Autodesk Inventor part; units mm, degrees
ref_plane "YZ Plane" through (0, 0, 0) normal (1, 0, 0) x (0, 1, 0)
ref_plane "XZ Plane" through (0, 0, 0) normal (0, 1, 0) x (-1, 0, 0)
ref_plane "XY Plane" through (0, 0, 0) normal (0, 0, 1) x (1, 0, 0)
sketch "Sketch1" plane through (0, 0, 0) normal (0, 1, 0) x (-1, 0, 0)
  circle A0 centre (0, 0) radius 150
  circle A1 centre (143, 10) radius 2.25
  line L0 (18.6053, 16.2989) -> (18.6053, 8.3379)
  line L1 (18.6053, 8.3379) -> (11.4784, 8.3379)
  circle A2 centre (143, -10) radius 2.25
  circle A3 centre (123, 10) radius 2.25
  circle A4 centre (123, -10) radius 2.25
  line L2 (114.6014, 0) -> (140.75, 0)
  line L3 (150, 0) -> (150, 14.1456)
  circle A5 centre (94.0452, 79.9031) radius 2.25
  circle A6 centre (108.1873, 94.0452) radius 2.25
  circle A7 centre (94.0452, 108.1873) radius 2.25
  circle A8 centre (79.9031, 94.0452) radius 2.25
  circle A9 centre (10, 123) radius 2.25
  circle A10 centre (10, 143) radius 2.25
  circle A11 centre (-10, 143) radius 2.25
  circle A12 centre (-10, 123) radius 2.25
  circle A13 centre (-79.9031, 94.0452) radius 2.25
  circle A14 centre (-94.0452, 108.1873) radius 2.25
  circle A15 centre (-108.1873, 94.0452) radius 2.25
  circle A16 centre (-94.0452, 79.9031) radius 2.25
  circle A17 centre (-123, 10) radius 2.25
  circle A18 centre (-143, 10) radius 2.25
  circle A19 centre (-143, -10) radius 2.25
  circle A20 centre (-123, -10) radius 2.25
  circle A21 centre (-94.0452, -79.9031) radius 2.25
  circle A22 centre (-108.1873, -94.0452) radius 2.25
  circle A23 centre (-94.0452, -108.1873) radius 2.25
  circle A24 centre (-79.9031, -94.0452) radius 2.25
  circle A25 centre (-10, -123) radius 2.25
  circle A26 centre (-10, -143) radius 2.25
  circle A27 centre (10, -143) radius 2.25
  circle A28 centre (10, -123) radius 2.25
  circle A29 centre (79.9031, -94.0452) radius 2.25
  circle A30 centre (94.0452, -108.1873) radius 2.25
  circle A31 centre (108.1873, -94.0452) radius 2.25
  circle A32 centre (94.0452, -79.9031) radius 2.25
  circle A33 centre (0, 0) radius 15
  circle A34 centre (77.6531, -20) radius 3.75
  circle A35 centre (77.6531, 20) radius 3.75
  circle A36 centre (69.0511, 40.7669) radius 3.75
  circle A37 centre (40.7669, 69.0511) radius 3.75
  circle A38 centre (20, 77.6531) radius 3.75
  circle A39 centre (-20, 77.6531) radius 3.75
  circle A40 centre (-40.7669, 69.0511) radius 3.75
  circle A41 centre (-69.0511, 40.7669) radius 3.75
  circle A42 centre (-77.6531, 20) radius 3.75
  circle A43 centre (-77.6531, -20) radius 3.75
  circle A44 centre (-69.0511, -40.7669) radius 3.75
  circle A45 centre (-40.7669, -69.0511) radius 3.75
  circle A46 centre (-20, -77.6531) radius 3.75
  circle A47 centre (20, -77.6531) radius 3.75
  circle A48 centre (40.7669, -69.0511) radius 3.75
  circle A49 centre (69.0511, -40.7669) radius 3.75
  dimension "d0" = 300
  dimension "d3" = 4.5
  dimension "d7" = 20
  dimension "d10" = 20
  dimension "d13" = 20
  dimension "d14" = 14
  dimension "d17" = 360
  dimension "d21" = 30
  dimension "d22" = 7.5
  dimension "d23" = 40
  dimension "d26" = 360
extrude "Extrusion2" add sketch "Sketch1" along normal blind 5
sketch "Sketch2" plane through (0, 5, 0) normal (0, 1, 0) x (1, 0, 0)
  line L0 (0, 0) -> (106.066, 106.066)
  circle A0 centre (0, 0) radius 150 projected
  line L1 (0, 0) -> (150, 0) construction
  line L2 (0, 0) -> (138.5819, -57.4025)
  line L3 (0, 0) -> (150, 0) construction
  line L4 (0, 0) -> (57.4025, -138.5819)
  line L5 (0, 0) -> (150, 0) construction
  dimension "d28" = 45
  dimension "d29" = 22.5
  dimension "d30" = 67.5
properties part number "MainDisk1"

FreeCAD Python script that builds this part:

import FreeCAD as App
import Part
import Sketcher

V = App.Vector

doc = App.newDocument("Part")
body = doc.addObject("PartDesign::Body", "Body")

sketch1 = body.newObject("Sketcher::SketchObject", "Sketch")
sketch1.AttachmentSupport = (doc.getObject("XZ_Plane"), [""])
sketch1.MapMode = "FlatFace"
sketch1.addGeometry([
    Part.Circle(V(0, 0, 0), V(0, 0, 1), 150),
    Part.Circle(V(94, -108.2, 0), V(0, 0, 1), 2.2),
    Part.Circle(V(108.2, -94, 0), V(0, 0, 1), 2.2),
    Part.Circle(V(79.9, -94, 0), V(0, 0, 1), 2.2),
    Part.Circle(V(94, -79.9, 0), V(0, 0, 1), 2.2),
    Part.Circle(V(10, -143, 0), V(0, 0, 1), 2.2),
    Part.Circle(V(10, -123, 0), V(0, 0, 1), 2.2),
    Part.Circle(V(20, -77.7, 0), V(0, 0, 1), 3.8),
    Part.Circle(V(143, -10, 0), V(0, 0, 1), 2.2),
    Part.Circle(V(123, -10, 0), V(0, 0, 1), 2.2),
    Part.Circle(V(77.7, -20, 0), V(0, 0, 1), 3.8),
    Part.Circle(V(40.8, -69.1, 0), V(0, 0, 1), 3.8),
    Part.Circle(V(69.1, -40.8, 0), V(0, 0, 1), 3.8),
    Part.Circle(V(-10, -143, 0), V(0, 0, 1), 2.2),
    Part.Circle(V(-10, -123, 0), V(0, 0, 1), 2.2),
    Part.Circle(V(-20, -77.7, 0), V(0, 0, 1), 3.8),
    Part.Circle(V(-79.9, -94, 0), V(0, 0, 1), 2.2),
    Part.Circle(V(-94, -108.2, 0), V(0, 0, 1), 2.2),
    Part.Circle(V(-108.2, -94, 0), V(0, 0, 1), 2.2),
    Part.Circle(V(-94, -79.9, 0), V(0, 0, 1), 2.2),
    Part.Circle(V(-40.8, -69.1, 0), V(0, 0, 1), 3.8),
    Part.Circle(V(-69.1, -40.8, 0), V(0, 0, 1), 3.8),
    Part.Circle(V(-77.7, -20, 0), V(0, 0, 1), 3.8),
    Part.Circle(V(-123, -10, 0), V(0, 0, 1), 2.2),
    Part.Circle(V(-143, -10, 0), V(0, 0, 1), 2.2),
    Part.Circle(V(143, 10, 0), V(0, 0, 1), 2.2),
    Part.Circle(V(123, 10, 0), V(0, 0, 1), 2.2),
    Part.Circle(V(77.7, 20, 0), V(0, 0, 1), 3.8),
    Part.Circle(V(69.1, 40.8, 0), V(0, 0, 1), 3.8),
    Part.Circle(V(40.8, 69.1, 0), V(0, 0, 1), 3.8),
    Part.Circle(V(94, 79.9, 0), V(0, 0, 1), 2.2),
    Part.Circle(V(108.2, 94, 0), V(0, 0, 1), 2.2),
    Part.Circle(V(94, 108.2, 0), V(0, 0, 1), 2.2),
    Part.Circle(V(79.9, 94, 0), V(0, 0, 1), 2.2),
    Part.Circle(V(20, 77.7, 0), V(0, 0, 1), 3.8),
    Part.Circle(V(10, 123, 0), V(0, 0, 1), 2.2),
    Part.Circle(V(10, 143, 0), V(0, 0, 1), 2.2),
    Part.Circle(V(0, 0, 0), V(0, 0, 1), 15),
    Part.Circle(V(-69.1, 40.8, 0), V(0, 0, 1), 3.8),
    Part.Circle(V(-40.8, 69.1, 0), V(0, 0, 1), 3.8),
    Part.Circle(V(-77.7, 20, 0), V(0, 0, 1), 3.8),
    Part.Circle(V(-123, 10, 0), V(0, 0, 1), 2.2),
    Part.Circle(V(-143, 10, 0), V(0, 0, 1), 2.2),
    Part.Circle(V(-20, 77.7, 0), V(0, 0, 1), 3.8),
    Part.Circle(V(-10, 123, 0), V(0, 0, 1), 2.2),
    Part.Circle(V(-10, 143, 0), V(0, 0, 1), 2.2),
    Part.Circle(V(-94, 79.9, 0), V(0, 0, 1), 2.2),
    Part.Circle(V(-79.9, 94, 0), V(0, 0, 1), 2.2),
    Part.Circle(V(-108.2, 94, 0), V(0, 0, 1), 2.2),
    Part.Circle(V(-94, 108.2, 0), V(0, 0, 1), 2.2),
], False)
sketch1.addConstraint([
    Sketcher.Constraint("Coincident", 0, 3, -1, 1),
    Sketcher.Constraint("Coincident", 37, 3, -1, 1),
    Sketcher.Constraint("Equal", 1, 2),
    Sketcher.Constraint("Equal", 2, 3),
    Sketcher.Constraint("Equal", 3, 4),
    Sketcher.Constraint("Equal", 4, 5),
    Sketcher.Constraint("Equal", 5, 6),
    Sketcher.Constraint("Equal", 6, 8),
    Sketcher.Constraint("Equal", 8, 9),
    Sketcher.Constraint("Equal", 7, 10),
    Sketcher.Constraint("Equal", 10, 11),
    Sketcher.Constraint("Equal", 11, 12),
    Sketcher.Constraint("Equal", 9, 13),
    Sketcher.Constraint("Equal", 13, 14),
    Sketcher.Constraint("Equal", 12, 15),
    Sketcher.Constraint("Equal", 14, 16),
    Sketcher.Constraint("Equal", 16, 17),
    Sketcher.Constraint("Equal", 17, 18),
    Sketcher.Constraint("Equal", 18, 19),
    Sketcher.Constraint("Equal", 15, 20),
    Sketcher.Constraint("Equal", 20, 21),
    Sketcher.Constraint("Equal", 21, 22),
    Sketcher.Constraint("Equal", 19, 23),
    Sketcher.Constraint("Equal", 23, 24),
    Sketcher.Constraint("Equal", 24, 25),
    Sketcher.Constraint("Equal", 25, 26),
    Sketcher.Constraint("Equal", 22, 27),
    Sketcher.Constraint("Equal", 27, 28),
    Sketcher.Constraint("Equal", 28, 29),
    Sketcher.Constraint("Equal", 26, 30),
    Sketcher.Constraint("Equal", 30, 31),
    Sketcher.Constraint("Equal", 31, 32),
    Sketcher.Constraint("Equal", 32, 33),
    Sketcher.Constraint("Equal", 29, 34),
    Sketcher.Constraint("Equal", 33, 35),
    Sketcher.Constraint("Equal", 35, 36),
    Sketcher.Constraint("Equal", 34, 38),
    Sketcher.Constraint("Equal", 38, 39),
    Sketcher.Constraint("Equal", 39, 40),
    Sketcher.Constraint("Equal", 36, 41),
    Sketcher.Constraint("Equal", 41, 42),
    Sketcher.Constraint("Equal", 40, 43),
    Sketcher.Constraint("Equal", 42, 44),
    Sketcher.Constraint("Equal", 44, 45),
    Sketcher.Constraint("Equal", 45, 46),
    Sketcher.Constraint("Equal", 46, 47),
    Sketcher.Constraint("Equal", 47, 48),
    Sketcher.Constraint("Equal", 48, 49),
    Sketcher.Constraint("Symmetric", 24, 3, 25, 3, -1, 1),
    Sketcher.Constraint("Symmetric", 23, 3, 26, 3, -1, 1),
    Sketcher.Constraint("Symmetric", 22, 3, 27, 3, -1, 1),
    Sketcher.Constraint("Symmetric", 21, 3, 28, 3, -1, 1),
    Sketcher.Constraint("Symmetric", 20, 3, 29, 3, -1, 1),
    Sketcher.Constraint("Symmetric", 19, 3, 30, 3, -1, 1),
    Sketcher.Constraint("Symmetric", 18, 3, 31, 3, -1, 1),
    Sketcher.Constraint("Symmetric", 17, 3, 32, 3, -1, 1),
    Sketcher.Constraint("Symmetric", 16, 3, 33, 3, -1, 1),
    Sketcher.Constraint("Symmetric", 15, 3, 34, 3, -1, 1),
    Sketcher.Constraint("Symmetric", 14, 3, 35, 3, -1, 1),
    Sketcher.Constraint("Symmetric", 13, 3, 36, 3, -1, 1),
    Sketcher.Constraint("Symmetric", 12, 3, 38, 3, -1, 1),
    Sketcher.Constraint("Symmetric", 11, 3, 39, 3, -1, 1),
    Sketcher.Constraint("Symmetric", 10, 3, 40, 3, -1, 1),
    Sketcher.Constraint("Symmetric", 9, 3, 41, 3, -1, 1),
    Sketcher.Constraint("Symmetric", 8, 3, 42, 3, -1, 1),
    Sketcher.Constraint("Symmetric", 7, 3, 43, 3, -1, 1),
    Sketcher.Constraint("Symmetric", 6, 3, 44, 3, -1, 1),
    Sketcher.Constraint("Symmetric", 5, 3, 45, 3, -1, 1),
    Sketcher.Constraint("Symmetric", 4, 3, 46, 3, -1, 1),
    Sketcher.Constraint("Symmetric", 3, 3, 47, 3, -1, 1),
    Sketcher.Constraint("Symmetric", 2, 3, 48, 3, -1, 1),
    Sketcher.Constraint("Symmetric", 1, 3, 49, 3, -1, 1),
    Sketcher.Constraint("Symmetric", 5, 3, 13, 3, -2),
    Sketcher.Constraint("Symmetric", 6, 3, 14, 3, -2),
    Sketcher.Constraint("Symmetric", 7, 3, 15, 3, -2),
    Sketcher.Constraint("Symmetric", 3, 3, 16, 3, -2),
    Sketcher.Constraint("Symmetric", 1, 3, 17, 3, -2),
    Sketcher.Constraint("Symmetric", 2, 3, 18, 3, -2),
    Sketcher.Constraint("Symmetric", 4, 3, 19, 3, -2),
    Sketcher.Constraint("Symmetric", 11, 3, 20, 3, -2),
    Sketcher.Constraint("Symmetric", 12, 3, 21, 3, -2),
    Sketcher.Constraint("Symmetric", 10, 3, 22, 3, -2),
    Sketcher.Constraint("Symmetric", 9, 3, 23, 3, -2),
    Sketcher.Constraint("Symmetric", 8, 3, 24, 3, -2),
    Sketcher.Constraint("Horizontal", 2, 3, 3, 3),
    Sketcher.Constraint("Horizontal", 8, 3, 9, 3),
    Sketcher.Constraint("Vertical", 1, 3, 4, 3),
    Sketcher.Constraint("Vertical", 5, 3, 6, 3),
    Sketcher.Constraint("Diameter", 0, 300.0),
    Sketcher.Constraint("Diameter", 37, 30.0),
    Sketcher.Constraint("Diameter", 1, 4.5),
    Sketcher.Constraint("Diameter", 7, 7.5),
    Sketcher.Constraint("DistanceX", -1, 1, 7, 3, 20.0),
    Sketcher.Constraint("DistanceY", 10, 3, -1, 1, 20.0),
    Sketcher.Constraint("DistanceY", 5, 3, 6, 3, 20.0),
    Sketcher.Constraint("DistanceX", 9, 3, 8, 3, 20.0),
    Sketcher.Constraint("DistanceX", 13, 3, 5, 3, 20.0),
    Sketcher.Constraint("DistanceY", 8, 3, 25, 3, 20.0),
    Sketcher.Constraint("DistanceY", 5, 3, -1, 1, 143.0),
    Sketcher.Constraint("DistanceX", -1, 1, 8, 3, 143.0),
    Sketcher.Constraint("DistanceY", 4, 3, 7, 3, 2.25),
    Sketcher.Constraint("DistanceX", 10, 3, 3, 3, 2.25),
    Sketcher.Constraint("DistanceX", -1, 1, 3, 3, 79.903),
    Sketcher.Constraint("DistanceY", 4, 3, -1, 1, 79.903),
    Sketcher.Constraint("DistanceX", -1, 1, 11, 3, 40.767),
    Sketcher.Constraint("DistanceY", 11, 3, -1, 1, 69.051),
    Sketcher.Constraint("DistanceX", -1, 1, 12, 3, 69.051),
    Sketcher.Constraint("DistanceY", 12, 3, -1, 1, 40.767),
    Sketcher.Constraint("DistanceX", 1, 3, 2, 3, 14.142),
    Sketcher.Constraint("DistanceY", 1, 3, 2, 3, 14.142),
    Sketcher.Constraint("DistanceX", 3, 3, 1, 3, 14.142),
    Sketcher.Constraint("DistanceY", 2, 3, 4, 3, 14.142),
])
pad1 = body.newObject("PartDesign::Pad", "Pad")
pad1.Profile = sketch1
pad1.Length = 5
pad1.Reversed = True

doc.recompute()
